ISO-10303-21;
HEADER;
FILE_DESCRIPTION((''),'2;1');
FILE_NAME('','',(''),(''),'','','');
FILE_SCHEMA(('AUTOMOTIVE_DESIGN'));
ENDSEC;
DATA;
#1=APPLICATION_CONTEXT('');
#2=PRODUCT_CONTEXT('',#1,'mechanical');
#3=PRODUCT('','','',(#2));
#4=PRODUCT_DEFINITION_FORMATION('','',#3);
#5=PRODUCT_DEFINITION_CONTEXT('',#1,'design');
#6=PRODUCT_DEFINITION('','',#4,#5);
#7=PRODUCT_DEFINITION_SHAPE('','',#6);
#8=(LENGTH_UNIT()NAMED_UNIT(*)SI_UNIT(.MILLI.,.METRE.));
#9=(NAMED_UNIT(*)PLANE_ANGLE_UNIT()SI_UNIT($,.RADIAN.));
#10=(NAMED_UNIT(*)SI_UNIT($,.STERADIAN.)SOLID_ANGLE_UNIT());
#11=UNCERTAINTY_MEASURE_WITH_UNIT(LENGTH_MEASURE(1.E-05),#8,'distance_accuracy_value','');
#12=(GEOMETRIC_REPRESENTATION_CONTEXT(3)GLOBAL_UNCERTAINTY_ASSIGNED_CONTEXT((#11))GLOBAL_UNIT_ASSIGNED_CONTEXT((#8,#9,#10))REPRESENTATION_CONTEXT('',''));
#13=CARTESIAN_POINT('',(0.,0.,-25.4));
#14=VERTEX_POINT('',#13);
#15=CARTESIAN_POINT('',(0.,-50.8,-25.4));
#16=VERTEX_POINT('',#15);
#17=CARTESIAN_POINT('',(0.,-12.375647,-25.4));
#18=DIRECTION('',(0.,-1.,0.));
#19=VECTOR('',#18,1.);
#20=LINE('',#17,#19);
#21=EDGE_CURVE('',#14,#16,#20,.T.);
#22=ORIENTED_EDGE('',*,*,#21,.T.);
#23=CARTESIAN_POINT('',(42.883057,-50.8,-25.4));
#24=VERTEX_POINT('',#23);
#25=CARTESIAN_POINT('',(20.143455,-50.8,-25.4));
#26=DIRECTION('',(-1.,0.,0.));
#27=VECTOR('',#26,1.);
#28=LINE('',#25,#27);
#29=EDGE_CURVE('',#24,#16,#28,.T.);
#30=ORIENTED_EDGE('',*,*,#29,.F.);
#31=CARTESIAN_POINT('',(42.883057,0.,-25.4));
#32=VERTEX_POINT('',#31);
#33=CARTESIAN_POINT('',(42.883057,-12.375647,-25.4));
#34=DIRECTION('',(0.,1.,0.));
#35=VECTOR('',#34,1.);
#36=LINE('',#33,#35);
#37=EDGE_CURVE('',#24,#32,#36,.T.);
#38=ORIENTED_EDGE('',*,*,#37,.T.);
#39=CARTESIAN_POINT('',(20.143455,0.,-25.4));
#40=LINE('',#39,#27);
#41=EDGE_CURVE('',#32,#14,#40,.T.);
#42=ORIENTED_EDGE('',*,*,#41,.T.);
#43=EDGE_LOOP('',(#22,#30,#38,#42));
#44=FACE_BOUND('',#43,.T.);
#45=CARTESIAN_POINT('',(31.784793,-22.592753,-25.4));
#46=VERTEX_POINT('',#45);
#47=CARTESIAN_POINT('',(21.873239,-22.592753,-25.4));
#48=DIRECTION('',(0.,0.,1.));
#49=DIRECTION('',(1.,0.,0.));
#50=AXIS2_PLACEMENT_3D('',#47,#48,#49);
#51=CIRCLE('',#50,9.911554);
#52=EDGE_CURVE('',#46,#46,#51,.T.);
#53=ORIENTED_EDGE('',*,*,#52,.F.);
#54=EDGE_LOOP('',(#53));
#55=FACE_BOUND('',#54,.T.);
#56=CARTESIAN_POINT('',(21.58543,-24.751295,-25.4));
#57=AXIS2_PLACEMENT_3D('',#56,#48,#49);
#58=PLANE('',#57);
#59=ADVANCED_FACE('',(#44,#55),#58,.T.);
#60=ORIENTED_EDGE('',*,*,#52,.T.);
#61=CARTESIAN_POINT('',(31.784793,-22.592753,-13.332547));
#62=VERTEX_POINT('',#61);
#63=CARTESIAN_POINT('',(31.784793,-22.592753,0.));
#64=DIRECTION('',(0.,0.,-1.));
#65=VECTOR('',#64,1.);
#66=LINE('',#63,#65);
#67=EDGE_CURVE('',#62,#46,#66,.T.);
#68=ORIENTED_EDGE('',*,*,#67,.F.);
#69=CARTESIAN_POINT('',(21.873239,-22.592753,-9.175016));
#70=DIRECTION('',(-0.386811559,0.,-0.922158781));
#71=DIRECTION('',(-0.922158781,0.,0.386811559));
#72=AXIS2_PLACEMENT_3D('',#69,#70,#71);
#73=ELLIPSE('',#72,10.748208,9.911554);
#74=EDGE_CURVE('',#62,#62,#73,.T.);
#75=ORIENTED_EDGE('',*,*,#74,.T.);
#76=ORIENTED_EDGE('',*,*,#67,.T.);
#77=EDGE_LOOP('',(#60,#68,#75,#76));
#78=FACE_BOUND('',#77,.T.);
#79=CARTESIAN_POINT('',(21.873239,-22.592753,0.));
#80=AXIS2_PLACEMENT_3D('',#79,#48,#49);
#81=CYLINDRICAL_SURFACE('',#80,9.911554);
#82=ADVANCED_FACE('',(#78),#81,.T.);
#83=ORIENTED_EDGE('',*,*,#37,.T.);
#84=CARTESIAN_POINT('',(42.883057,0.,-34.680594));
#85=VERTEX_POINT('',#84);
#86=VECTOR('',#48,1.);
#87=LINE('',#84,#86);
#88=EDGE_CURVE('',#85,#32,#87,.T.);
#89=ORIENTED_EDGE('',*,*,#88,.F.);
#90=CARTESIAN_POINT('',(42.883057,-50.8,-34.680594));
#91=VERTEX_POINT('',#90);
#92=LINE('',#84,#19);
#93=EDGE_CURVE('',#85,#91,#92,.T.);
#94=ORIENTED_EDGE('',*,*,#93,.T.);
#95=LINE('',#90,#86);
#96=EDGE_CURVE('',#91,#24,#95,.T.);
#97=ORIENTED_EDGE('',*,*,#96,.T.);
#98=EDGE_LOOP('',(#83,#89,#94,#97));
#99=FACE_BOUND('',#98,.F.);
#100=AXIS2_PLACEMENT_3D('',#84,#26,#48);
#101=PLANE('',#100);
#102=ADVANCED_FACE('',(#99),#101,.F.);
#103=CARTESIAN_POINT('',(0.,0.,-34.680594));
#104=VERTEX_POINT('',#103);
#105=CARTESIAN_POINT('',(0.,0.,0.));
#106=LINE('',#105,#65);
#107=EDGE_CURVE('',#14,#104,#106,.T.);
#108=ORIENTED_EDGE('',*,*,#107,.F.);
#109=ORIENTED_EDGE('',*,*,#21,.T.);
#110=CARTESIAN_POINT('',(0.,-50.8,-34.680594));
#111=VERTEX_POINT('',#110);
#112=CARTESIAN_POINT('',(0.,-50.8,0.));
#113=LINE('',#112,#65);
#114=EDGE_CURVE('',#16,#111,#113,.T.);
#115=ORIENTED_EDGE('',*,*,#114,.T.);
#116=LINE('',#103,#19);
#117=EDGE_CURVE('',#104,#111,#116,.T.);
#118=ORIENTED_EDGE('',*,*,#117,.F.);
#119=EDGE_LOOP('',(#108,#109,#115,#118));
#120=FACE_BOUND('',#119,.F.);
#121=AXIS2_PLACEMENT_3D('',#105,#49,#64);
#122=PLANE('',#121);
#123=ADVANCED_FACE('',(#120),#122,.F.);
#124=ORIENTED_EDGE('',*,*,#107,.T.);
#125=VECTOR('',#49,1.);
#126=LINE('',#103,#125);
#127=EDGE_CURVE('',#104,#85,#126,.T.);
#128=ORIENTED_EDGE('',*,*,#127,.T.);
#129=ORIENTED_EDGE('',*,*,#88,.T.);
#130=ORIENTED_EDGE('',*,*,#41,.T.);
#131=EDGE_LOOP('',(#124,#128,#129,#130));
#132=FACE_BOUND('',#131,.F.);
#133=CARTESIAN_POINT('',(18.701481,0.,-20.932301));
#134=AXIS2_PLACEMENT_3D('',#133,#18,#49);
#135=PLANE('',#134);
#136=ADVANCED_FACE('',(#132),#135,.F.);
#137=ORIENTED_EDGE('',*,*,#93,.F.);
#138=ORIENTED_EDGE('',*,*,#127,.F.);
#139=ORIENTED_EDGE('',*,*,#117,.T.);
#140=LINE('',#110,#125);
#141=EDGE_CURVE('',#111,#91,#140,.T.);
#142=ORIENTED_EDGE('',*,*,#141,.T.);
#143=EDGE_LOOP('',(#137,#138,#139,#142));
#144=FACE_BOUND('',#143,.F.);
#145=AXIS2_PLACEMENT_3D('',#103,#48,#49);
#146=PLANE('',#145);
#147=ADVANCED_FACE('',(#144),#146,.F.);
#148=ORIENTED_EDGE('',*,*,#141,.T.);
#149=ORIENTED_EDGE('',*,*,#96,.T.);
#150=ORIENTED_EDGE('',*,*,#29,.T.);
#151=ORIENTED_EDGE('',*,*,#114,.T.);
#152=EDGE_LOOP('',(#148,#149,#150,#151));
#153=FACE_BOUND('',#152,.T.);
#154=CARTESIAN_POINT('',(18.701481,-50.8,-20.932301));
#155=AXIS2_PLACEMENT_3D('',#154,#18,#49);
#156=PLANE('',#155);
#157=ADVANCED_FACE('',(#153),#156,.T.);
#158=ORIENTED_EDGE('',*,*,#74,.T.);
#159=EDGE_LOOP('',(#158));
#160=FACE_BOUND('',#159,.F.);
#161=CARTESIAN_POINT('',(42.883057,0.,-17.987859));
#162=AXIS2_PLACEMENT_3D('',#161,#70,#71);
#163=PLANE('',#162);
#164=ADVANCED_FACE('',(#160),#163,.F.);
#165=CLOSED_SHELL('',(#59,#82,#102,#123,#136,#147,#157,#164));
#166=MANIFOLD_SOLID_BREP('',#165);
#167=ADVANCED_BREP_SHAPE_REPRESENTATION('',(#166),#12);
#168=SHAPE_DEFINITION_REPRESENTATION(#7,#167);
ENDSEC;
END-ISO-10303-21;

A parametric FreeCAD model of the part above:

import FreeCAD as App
import Part
import Sketcher

V = App.Vector
Q = App.Units.Quantity


def add_polygon(sketch, points):
    """Adds a closed chain of lines whose ends are joined by coincident constraints."""
    first, n = sketch.GeometryCount, len(points)
    for a, b in zip(points, points[1:] + points[:1]):
        sketch.addGeometry(Part.LineSegment(App.Vector(*a, 0), App.Vector(*b, 0)), False)
    for i in range(n):
        sketch.addConstraint(Sketcher.Constraint("Coincident", first + i, 2, first + (i + 1) % n, 1))

doc = App.newDocument("Part")
body = doc.addObject("PartDesign::Body", "Body")

# Sketch on XZ plane
sketch1 = doc.addObject("Sketcher::SketchObject", "Sketch")
body.addObject(sketch1)
sketch1.AttachmentSupport = (doc.XZ_Plane, [""])
sketch1.MapMode = "FlatFace"
add_polygon(sketch1, [(43, -18), (0, 0), (0, -35), (43, -35)])  # lines 0-3
sketch1.addConstraint(Sketcher.Constraint("Vertical", 1))
sketch1.addConstraint(Sketcher.Constraint("Horizontal", 2))
sketch1.addConstraint(Sketcher.Constraint("Vertical", 3))
sketch1.addConstraint(Sketcher.Constraint("Coincident", 0, 2, -1, 1))
sketch1.addConstraint(Sketcher.Constraint("Distance", 0, 46.502899))
sketch1.addConstraint(Sketcher.Constraint("DistanceX", 2, 1, 2, 2, 42.883057))
sketch1.addConstraint(Sketcher.Constraint("DistanceY", 1, 2, 1, 1, 34.680594))
pad1 = doc.addObject("PartDesign::Pad", "Pad")
body.addObject(pad1)
pad1.Profile = sketch1
pad1.Length = Q("2 in")

# Sketch on XY plane
sketch2 = doc.addObject("Sketcher::SketchObject", "Sketch001")
body.addObject(sketch2)
sketch2.AttachmentSupport = (doc.XY_Plane, [""])
sketch2.MapMode = "FlatFace"
add_polygon(sketch2, [(-9, 8), (-9, -57), (52, -57), (52, 8)])  # lines 0-3
sketch2.addGeometry(Part.Circle(V(22, -23, 0), V(0, 0, 1), 10), False)  # 4
sketch2.addConstraint(Sketcher.Constraint("Vertical", 0))
sketch2.addConstraint(Sketcher.Constraint("Horizontal", 1))
sketch2.addConstraint(Sketcher.Constraint("Vertical", 2))
sketch2.addConstraint(Sketcher.Constraint("Horizontal", 3))
sketch2.addConstraint(Sketcher.Constraint("Diameter", 4, 19.823108))
sketch2.addConstraint(Sketcher.Constraint("DistanceX", 1, 1, 1, 2, 61.014819))
sketch2.addConstraint(Sketcher.Constraint("DistanceX", 4, 3, 1, 2, 30.2196))
sketch2.addConstraint(Sketcher.Constraint("DistanceY", 0, 2, 0, 1, 64.756295))
sketch2.addConstraint(Sketcher.Constraint("DistanceX", -1, 1, 4, 3, 21.873239))
sketch2.addConstraint(Sketcher.Constraint("DistanceY", 0, 2, 4, 3, 34.53669))
sketch2.addConstraint(Sketcher.Constraint("DistanceY", 4, 3, -1, 1, 22.592753))
pocket1 = doc.addObject("PartDesign::Pocket", "Pocket")
body.addObject(pocket1)
pocket1.Profile = sketch2
pocket1.Length = Q("1 in")

doc.recompute()
